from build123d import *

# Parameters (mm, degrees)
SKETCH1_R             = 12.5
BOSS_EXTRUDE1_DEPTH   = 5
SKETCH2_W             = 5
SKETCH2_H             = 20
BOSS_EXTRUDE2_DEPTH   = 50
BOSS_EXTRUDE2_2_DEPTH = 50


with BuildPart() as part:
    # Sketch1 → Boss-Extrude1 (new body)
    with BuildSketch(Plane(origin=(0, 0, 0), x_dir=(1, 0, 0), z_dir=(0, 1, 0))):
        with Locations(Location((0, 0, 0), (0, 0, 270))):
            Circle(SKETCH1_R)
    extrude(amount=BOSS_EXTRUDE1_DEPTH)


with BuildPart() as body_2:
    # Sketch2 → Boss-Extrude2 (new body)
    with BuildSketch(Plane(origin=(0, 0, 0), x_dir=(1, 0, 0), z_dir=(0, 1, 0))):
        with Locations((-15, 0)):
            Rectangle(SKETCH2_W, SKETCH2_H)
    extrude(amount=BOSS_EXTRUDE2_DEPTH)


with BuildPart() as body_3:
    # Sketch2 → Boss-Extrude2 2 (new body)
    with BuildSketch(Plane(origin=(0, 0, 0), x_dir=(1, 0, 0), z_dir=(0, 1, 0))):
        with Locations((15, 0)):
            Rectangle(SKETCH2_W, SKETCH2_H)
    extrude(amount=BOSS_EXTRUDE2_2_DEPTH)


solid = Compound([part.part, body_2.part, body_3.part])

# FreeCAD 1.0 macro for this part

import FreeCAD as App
import Part
import Sketcher

V = App.Vector
Q = App.Units.Quantity

doc = App.newDocument("Part")
body = doc.addObject("PartDesign::Body", "Body")

# Sketch on XZ plane
sketch1 = body.newObject("Sketcher::SketchObject", "Sketch")
sketch1.AttachmentSupport = (doc.getObject("XZ_Plane"), [""])
sketch1.MapMode = "FlatFace"
sketch1.addGeometry(Part.Circle(V(0, 0, 0), V(0, 0, 1), 12), False)
sketch1.addConstraint(Sketcher.Constraint("Coincident", 0, 3, -1, 1))
sketch1.addConstraint(Sketcher.Constraint("Diameter", 0, Q("25 mm")))
pad1 = body.newObject("PartDesign::Pad", "Pad")
pad1.Profile = sketch1
pad1.Length = 5
pad1.Reversed = True
body2 = doc.addObject("PartDesign::Body", "Body001")

# Sketch on XZ plane
sketch2 = body2.newObject("Sketcher::SketchObject", "Sketch001")
sketch2.AttachmentSupport = (doc.getObject("XZ_Plane001"), [""])
sketch2.MapMode = "FlatFace"
sketch2.addGeometry(Part.LineSegment(V(-18, -10, 0), V(-18, 10, 0)), False)
sketch2.addGeometry(Part.LineSegment(V(-18, 10, 0), V(-12, 10, 0)), False)
sketch2.addGeometry(Part.LineSegment(V(-12, 10, 0), V(-12, -10, 0)), False)
sketch2.addGeometry(Part.LineSegment(V(-12, -10, 0), V(-18, -10, 0)), False)
sketch2.addConstraint(Sketcher.Constraint("Coincident", 0, 2, 1, 1))
sketch2.addConstraint(Sketcher.Constraint("Coincident", 1, 2, 2, 1))
sketch2.addConstraint(Sketcher.Constraint("Coincident", 2, 2, 3, 1))
sketch2.addConstraint(Sketcher.Constraint("Coincident", 3, 2, 0, 1))
sketch2.addConstraint(Sketcher.Constraint("Vertical", 0))
sketch2.addConstraint(Sketcher.Constraint("Horizontal", 1))
sketch2.addConstraint(Sketcher.Constraint("Vertical", 2))
sketch2.addConstraint(Sketcher.Constraint("Horizontal", 3))
sketch2.addConstraint(Sketcher.Constraint("DistanceX", 1, 1, 1, 2, Q("5 mm")))
sketch2.addConstraint(Sketcher.Constraint("DistanceY", 0, 1, 0, 2, Q("20 mm")))
sketch2.addConstraint(Sketcher.Constraint("DistanceY", -1, 1, 0, 2, Q("10 mm")))
sketch2.addConstraint(Sketcher.Constraint("DistanceX", 0, 2, -1, 1, Q("17.5 mm")))
pad2 = body2.newObject("PartDesign::Pad", "Pad001")
pad2.Profile = sketch2
pad2.Length = 50
pad2.Reversed = True
body3 = doc.addObject("PartDesign::Body", "Body002")

# Sketch on XZ plane
sketch3 = body3.newObject("Sketcher::SketchObject", "Sketch002")
sketch3.AttachmentSupport = (doc.getObject("XZ_Plane002"), [""])
sketch3.MapMode = "FlatFace"
sketch3.addGeometry(Part.LineSegment(V(12, -10, 0), V(12, 10, 0)), False)
sketch3.addGeometry(Part.LineSegment(V(12, 10, 0), V(18, 10, 0)), False)
sketch3.addGeometry(Part.LineSegment(V(18, 10, 0), V(18, -10, 0)), False)
sketch3.addGeometry(Part.LineSegment(V(18, -10, 0), V(12, -10, 0)), False)
sketch3.addConstraint(Sketcher.Constraint("Coincident", 0, 2, 1, 1))
sketch3.addConstraint(Sketcher.Constraint("Coincident", 1, 2, 2, 1))
sketch3.addConstraint(Sketcher.Constraint("Coincident", 2, 2, 3, 1))
sketch3.addConstraint(Sketcher.Constraint("Coincident", 3, 2, 0, 1))
sketch3.addConstraint(Sketcher.Constraint("Vertical", 0))
sketch3.addConstraint(Sketcher.Constraint("Horizontal", 1))
sketch3.addConstraint(Sketcher.Constraint("Vertical", 2))
sketch3.addConstraint(Sketcher.Constraint("Horizontal", 3))
sketch3.addConstraint(Sketcher.Constraint("DistanceX", 1, 1, 1, 2, Q("5 mm")))
sketch3.addConstraint(Sketcher.Constraint("DistanceY", 0, 1, 0, 2, Q("20 mm")))
sketch3.addConstraint(Sketcher.Constraint("DistanceY", -1, 1, 0, 2, Q("10 mm")))
sketch3.addConstraint(Sketcher.Constraint("DistanceX", -1, 1, 0, 2, Q("12.5 mm")))
pad3 = body3.newObject("PartDesign::Pad", "Pad002")
pad3.Profile = sketch3
pad3.Length = 50
pad3.Reversed = True

doc.recompute()
